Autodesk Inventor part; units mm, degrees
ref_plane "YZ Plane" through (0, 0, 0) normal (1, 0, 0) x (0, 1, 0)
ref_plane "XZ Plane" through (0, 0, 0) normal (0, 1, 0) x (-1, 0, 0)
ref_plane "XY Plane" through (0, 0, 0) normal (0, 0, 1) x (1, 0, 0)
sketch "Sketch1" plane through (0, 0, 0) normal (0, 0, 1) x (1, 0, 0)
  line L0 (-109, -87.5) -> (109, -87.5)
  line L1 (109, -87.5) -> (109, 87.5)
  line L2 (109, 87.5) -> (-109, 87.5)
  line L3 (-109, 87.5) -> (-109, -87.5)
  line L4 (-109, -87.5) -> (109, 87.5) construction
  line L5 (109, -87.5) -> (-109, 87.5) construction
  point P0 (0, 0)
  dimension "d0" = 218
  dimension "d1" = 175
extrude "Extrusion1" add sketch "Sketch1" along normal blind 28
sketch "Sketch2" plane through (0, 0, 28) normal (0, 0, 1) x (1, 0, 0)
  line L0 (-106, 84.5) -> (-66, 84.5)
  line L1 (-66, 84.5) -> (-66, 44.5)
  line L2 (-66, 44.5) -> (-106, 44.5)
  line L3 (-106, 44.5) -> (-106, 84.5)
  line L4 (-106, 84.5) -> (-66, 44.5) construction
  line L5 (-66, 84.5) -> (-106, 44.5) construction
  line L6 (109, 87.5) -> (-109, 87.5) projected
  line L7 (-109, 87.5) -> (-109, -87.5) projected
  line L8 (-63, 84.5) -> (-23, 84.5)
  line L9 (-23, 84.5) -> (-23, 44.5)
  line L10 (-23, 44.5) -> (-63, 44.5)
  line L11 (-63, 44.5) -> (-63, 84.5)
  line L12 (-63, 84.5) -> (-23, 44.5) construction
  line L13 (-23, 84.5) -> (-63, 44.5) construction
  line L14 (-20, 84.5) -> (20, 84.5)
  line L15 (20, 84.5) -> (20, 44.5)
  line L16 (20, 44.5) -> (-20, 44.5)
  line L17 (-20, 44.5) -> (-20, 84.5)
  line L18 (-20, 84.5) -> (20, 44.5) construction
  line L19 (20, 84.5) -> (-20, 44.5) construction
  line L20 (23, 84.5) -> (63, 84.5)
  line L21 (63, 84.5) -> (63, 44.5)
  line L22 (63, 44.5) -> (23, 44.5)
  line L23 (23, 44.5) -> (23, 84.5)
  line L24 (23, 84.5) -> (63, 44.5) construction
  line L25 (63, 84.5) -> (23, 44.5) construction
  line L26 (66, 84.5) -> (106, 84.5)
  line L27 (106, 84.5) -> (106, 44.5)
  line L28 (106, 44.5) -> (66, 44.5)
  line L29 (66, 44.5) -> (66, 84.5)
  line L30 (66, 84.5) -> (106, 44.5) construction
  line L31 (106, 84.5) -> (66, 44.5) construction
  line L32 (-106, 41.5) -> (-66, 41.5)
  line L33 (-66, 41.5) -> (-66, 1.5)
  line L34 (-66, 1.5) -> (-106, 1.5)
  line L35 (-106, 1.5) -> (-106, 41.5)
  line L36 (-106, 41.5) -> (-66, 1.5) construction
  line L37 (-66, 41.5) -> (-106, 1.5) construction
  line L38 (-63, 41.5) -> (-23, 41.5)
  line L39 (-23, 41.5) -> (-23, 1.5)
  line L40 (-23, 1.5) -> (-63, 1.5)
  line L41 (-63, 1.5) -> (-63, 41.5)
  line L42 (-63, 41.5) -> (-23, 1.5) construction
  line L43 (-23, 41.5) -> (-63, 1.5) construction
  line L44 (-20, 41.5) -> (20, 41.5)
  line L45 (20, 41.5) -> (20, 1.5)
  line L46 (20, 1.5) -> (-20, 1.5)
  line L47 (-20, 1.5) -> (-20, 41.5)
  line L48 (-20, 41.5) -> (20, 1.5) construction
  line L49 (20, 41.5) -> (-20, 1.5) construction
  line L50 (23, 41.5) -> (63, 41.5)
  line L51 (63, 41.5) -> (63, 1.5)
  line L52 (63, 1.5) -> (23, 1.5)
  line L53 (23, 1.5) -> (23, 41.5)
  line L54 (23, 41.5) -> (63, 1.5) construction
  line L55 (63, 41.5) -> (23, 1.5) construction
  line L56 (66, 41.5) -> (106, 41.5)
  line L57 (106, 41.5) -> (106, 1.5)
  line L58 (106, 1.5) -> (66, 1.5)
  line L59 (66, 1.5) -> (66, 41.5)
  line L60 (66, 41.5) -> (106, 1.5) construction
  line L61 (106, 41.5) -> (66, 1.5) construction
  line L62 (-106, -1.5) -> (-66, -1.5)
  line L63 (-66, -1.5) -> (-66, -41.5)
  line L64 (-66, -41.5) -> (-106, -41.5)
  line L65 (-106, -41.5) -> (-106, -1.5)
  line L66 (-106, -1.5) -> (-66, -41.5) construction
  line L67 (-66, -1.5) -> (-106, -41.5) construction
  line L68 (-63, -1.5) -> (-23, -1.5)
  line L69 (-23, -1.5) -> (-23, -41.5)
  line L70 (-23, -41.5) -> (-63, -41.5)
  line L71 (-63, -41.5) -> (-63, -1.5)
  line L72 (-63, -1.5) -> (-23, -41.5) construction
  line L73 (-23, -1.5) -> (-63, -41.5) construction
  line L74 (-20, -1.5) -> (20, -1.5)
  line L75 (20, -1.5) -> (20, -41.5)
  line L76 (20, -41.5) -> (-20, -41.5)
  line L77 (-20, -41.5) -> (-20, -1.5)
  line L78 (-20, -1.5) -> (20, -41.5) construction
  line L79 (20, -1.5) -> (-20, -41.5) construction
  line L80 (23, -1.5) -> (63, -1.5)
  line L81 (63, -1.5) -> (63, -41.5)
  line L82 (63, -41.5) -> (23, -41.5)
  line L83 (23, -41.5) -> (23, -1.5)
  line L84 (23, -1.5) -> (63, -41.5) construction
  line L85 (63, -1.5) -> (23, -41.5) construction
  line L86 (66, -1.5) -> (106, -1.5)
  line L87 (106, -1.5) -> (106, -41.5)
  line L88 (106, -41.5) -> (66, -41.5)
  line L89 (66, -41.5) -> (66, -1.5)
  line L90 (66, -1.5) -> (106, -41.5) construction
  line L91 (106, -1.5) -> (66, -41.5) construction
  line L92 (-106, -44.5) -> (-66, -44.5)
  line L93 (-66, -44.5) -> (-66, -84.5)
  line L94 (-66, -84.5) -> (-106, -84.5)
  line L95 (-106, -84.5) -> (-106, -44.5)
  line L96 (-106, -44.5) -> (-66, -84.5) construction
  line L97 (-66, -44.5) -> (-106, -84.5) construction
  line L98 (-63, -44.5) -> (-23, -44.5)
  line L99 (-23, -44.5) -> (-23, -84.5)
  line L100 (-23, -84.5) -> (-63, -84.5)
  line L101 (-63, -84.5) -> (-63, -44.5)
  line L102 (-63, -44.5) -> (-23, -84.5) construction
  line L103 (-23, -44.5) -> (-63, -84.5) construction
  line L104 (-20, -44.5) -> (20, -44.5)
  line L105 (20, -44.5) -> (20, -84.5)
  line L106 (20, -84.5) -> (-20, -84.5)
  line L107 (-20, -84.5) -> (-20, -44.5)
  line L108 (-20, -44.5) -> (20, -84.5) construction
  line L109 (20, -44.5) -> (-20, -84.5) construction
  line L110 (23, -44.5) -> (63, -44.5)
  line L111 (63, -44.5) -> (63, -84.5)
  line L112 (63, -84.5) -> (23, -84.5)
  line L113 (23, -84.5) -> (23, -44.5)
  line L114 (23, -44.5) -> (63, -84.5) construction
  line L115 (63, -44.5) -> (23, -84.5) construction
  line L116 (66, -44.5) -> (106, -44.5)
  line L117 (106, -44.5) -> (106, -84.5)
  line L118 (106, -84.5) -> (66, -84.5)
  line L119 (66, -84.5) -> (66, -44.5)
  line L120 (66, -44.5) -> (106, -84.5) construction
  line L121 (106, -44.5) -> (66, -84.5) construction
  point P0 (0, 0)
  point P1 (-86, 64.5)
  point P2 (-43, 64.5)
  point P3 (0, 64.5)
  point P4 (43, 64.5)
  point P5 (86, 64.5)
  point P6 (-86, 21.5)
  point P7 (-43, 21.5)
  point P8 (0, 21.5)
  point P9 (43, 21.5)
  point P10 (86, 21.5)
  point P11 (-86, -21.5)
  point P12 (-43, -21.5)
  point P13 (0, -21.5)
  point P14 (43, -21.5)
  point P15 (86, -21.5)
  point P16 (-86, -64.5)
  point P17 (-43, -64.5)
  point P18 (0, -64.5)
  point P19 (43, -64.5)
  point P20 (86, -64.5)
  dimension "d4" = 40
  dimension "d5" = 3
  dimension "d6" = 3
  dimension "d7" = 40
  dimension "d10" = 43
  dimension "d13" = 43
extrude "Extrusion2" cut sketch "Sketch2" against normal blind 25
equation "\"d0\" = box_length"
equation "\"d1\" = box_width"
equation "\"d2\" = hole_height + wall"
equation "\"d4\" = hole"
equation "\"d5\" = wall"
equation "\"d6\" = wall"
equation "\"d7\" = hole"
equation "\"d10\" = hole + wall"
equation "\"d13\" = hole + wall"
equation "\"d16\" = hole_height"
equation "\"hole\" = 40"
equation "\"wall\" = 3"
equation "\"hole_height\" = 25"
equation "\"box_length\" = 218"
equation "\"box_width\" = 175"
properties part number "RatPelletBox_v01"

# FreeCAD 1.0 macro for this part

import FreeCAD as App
import Part
import Sketcher
from FreeCAD import Vector

doc = App.newDocument("Part")
body = doc.addObject("PartDesign::Body", "Body")

# Sketch on XY plane
sketch1 = body.newObject("Sketcher::SketchObject", "Sketch")
sketch1.AttachmentSupport = (doc.getObject("XY_Plane"), [""])
sketch1.MapMode = "FlatFace"
sketch1.addGeometry([
    Part.LineSegment(Vector(-109, 87.5, 0), Vector(-109, -87.5, 0)),
    Part.LineSegment(Vector(-109, -87.5, 0), Vector(109, -87.5, 0)),
    Part.LineSegment(Vector(109, -87.5, 0), Vector(109, 87.5, 0)),
    Part.LineSegment(Vector(109, 87.5, 0), Vector(-109, 87.5, 0)),
], False)
sketch1.addConstraint([
    Sketcher.Constraint("Coincident", 0, 2, 1, 1),
    Sketcher.Constraint("Coincident", 1, 2, 2, 1),
    Sketcher.Constraint("Coincident", 2, 2, 3, 1),
    Sketcher.Constraint("Coincident", 3, 2, 0, 1),
    Sketcher.Constraint("Vertical", 0),
    Sketcher.Constraint("Horizontal", 1),
    Sketcher.Constraint("Vertical", 2),
    Sketcher.Constraint("Horizontal", 3),
    Sketcher.Constraint("Symmetric", 0, 2, 2, 2, -1, 1),
    Sketcher.Constraint("DistanceX", 1, 1, 1, 2, 218.0),
    Sketcher.Constraint("DistanceY", 0, 2, 0, 1, 175.0),
])
pad1 = body.newObject("PartDesign::Pad", "Pad")
pad1.Profile = sketch1
pad1.Length = 28

# Sketch on XY plane
sketch2 = body.newObject("Sketcher::SketchObject", "Sketch001")
sketch2.AttachmentSupport = (doc.getObject("XY_Plane"), [""])
sketch2.MapMode = "FlatFace"
sketch2.AttachmentOffset = App.Placement(Vector(0, 0, 28), App.Rotation())
sketch2.addGeometry([
    Part.LineSegment(Vector(-66, 84.5, 0), Vector(-106, 84.5, 0)),  # 0
    Part.LineSegment(Vector(-106, 84.5, 0), Vector(-106, 44.5, 0)),  # 1
    Part.LineSegment(Vector(-106, 44.5, 0), Vector(-66, 44.5, 0)),  # 2
    Part.LineSegment(Vector(-66, 44.5, 0), Vector(-66, 84.5, 0)),  # 3
    Part.LineSegment(Vector(-23, 84.5, 0), Vector(-63, 84.5, 0)),  # 4
    Part.LineSegment(Vector(-63, 84.5, 0), Vector(-63, 44.5, 0)),  # 5
    Part.LineSegment(Vector(-63, 44.5, 0), Vector(-23, 44.5, 0)),  # 6
    Part.LineSegment(Vector(-23, 44.5, 0), Vector(-23, 84.5, 0)),  # 7
    Part.LineSegment(Vector(20, 84.5, 0), Vector(-20, 84.5, 0)),  # 8
    Part.LineSegment(Vector(-20, 84.5, 0), Vector(-20, 44.5, 0)),  # 9
    Part.LineSegment(Vector(-20, 44.5, 0), Vector(20, 44.5, 0)),  # 10
    Part.LineSegment(Vector(20, 44.5, 0), Vector(20, 84.5, 0)),  # 11
    Part.LineSegment(Vector(63, 84.5, 0), Vector(23, 84.5, 0)),  # 12
    Part.LineSegment(Vector(23, 84.5, 0), Vector(23, 44.5, 0)),  # 13
    Part.LineSegment(Vector(23, 44.5, 0), Vector(63, 44.5, 0)),  # 14
    Part.LineSegment(Vector(63, 44.5, 0), Vector(63, 84.5, 0)),  # 15
    Part.LineSegment(Vector(106, 84.5, 0), Vector(66, 84.5, 0)),  # 16
    Part.LineSegment(Vector(66, 84.5, 0), Vector(66, 44.5, 0)),  # 17
    Part.LineSegment(Vector(66, 44.5, 0), Vector(106, 44.5, 0)),  # 18
    Part.LineSegment(Vector(106, 44.5, 0), Vector(106, 84.5, 0)),  # 19
    Part.LineSegment(Vector(-66, 41.5, 0), Vector(-106, 41.5, 0)),  # 20
    Part.LineSegment(Vector(-106, 41.5, 0), Vector(-106, 1.5, 0)),  # 21
    Part.LineSegment(Vector(-106, 1.5, 0), Vector(-66, 1.5, 0)),  # 22
    Part.LineSegment(Vector(-66, 1.5, 0), Vector(-66, 41.5, 0)),  # 23
    Part.LineSegment(Vector(-23, 41.5, 0), Vector(-63, 41.5, 0)),  # 24
    Part.LineSegment(Vector(-63, 41.5, 0), Vector(-63, 1.5, 0)),  # 25
    Part.LineSegment(Vector(-63, 1.5, 0), Vector(-23, 1.5, 0)),  # 26
    Part.LineSegment(Vector(-23, 1.5, 0), Vector(-23, 41.5, 0)),  # 27
    Part.LineSegment(Vector(20, 41.5, 0), Vector(-20, 41.5, 0)),  # 28
    Part.LineSegment(Vector(-20, 41.5, 0), Vector(-20, 1.5, 0)),  # 29
    Part.LineSegment(Vector(-20, 1.5, 0), Vector(20, 1.5, 0)),  # 30
    Part.LineSegment(Vector(20, 1.5, 0), Vector(20, 41.5, 0)),  # 31
    Part.LineSegment(Vector(63, 41.5, 0), Vector(23, 41.5, 0)),  # 32
    Part.LineSegment(Vector(23, 41.5, 0), Vector(23, 1.5, 0)),  # 33
    Part.LineSegment(Vector(23, 1.5, 0), Vector(63, 1.5, 0)),  # 34
    Part.LineSegment(Vector(63, 1.5, 0), Vector(63, 41.5, 0)),  # 35
    Part.LineSegment(Vector(106, 41.5, 0), Vector(66, 41.5, 0)),  # 36
    Part.LineSegment(Vector(66, 41.5, 0), Vector(66, 1.5, 0)),  # 37
    Part.LineSegment(Vector(66, 1.5, 0), Vector(106, 1.5, 0)),  # 38
    Part.LineSegment(Vector(106, 1.5, 0), Vector(106, 41.5, 0)),  # 39
    Part.LineSegment(Vector(-66, -1.5, 0), Vector(-106, -1.5, 0)),  # 40
    Part.LineSegment(Vector(-106, -1.5, 0), Vector(-106, -41.5, 0)),  # 41
    Part.LineSegment(Vector(-106, -41.5, 0), Vector(-66, -41.5, 0)),  # 42
    Part.LineSegment(Vector(-66, -41.5, 0), Vector(-66, -1.5, 0)),  # 43
    Part.LineSegment(Vector(-23, -1.5, 0), Vector(-63, -1.5, 0)),  # 44
    Part.LineSegment(Vector(-63, -1.5, 0), Vector(-63, -41.5, 0)),  # 45
    Part.LineSegment(Vector(-63, -41.5, 0), Vector(-23, -41.5, 0)),  # 46
    Part.LineSegment(Vector(-23, -41.5, 0), Vector(-23, -1.5, 0)),  # 47
    Part.LineSegment(Vector(20, -1.5, 0), Vector(-20, -1.5, 0)),  # 48
    Part.LineSegment(Vector(-20, -1.5, 0), Vector(-20, -41.5, 0)),  # 49
    Part.LineSegment(Vector(-20, -41.5, 0), Vector(20, -41.5, 0)),  # 50
    Part.LineSegment(Vector(20, -41.5, 0), Vector(20, -1.5, 0)),  # 51
    Part.LineSegment(Vector(63, -1.5, 0), Vector(23, -1.5, 0)),  # 52
    Part.LineSegment(Vector(23, -1.5, 0), Vector(23, -41.5, 0)),  # 53
    Part.LineSegment(Vector(23, -41.5, 0), Vector(63, -41.5, 0)),  # 54
    Part.LineSegment(Vector(63, -41.5, 0), Vector(63, -1.5, 0)),  # 55
    Part.LineSegment(Vector(106, -1.5, 0), Vector(66, -1.5, 0)),  # 56
    Part.LineSegment(Vector(66, -1.5, 0), Vector(66, -41.5, 0)),  # 57
    Part.LineSegment(Vector(66, -41.5, 0), Vector(106, -41.5, 0)),  # 58
    Part.LineSegment(Vector(106, -41.5, 0), Vector(106, -1.5, 0)),  # 59
    Part.LineSegment(Vector(-66, -44.5, 0), Vector(-106, -44.5, 0)),  # 60
    Part.LineSegment(Vector(-106, -44.5, 0), Vector(-106, -84.5, 0)),  # 61
    Part.LineSegment(Vector(-106, -84.5, 0), Vector(-66, -84.5, 0)),  # 62
    Part.LineSegment(Vector(-66, -84.5, 0), Vector(-66, -44.5, 0)),  # 63
    Part.LineSegment(Vector(-23, -44.5, 0), Vector(-63, -44.5, 0)),  # 64
    Part.LineSegment(Vector(-63, -44.5, 0), Vector(-63, -84.5, 0)),  # 65
    Part.LineSegment(Vector(-63, -84.5, 0), Vector(-23, -84.5, 0)),  # 66
    Part.LineSegment(Vector(-23, -84.5, 0), Vector(-23, -44.5, 0)),  # 67
    Part.LineSegment(Vector(20, -44.5, 0), Vector(-20, -44.5, 0)),  # 68
    Part.LineSegment(Vector(-20, -44.5, 0), Vector(-20, -84.5, 0)),  # 69
    Part.LineSegment(Vector(-20, -84.5, 0), Vector(20, -84.5, 0)),  # 70
    Part.LineSegment(Vector(20, -84.5, 0), Vector(20, -44.5, 0)),  # 71
    Part.LineSegment(Vector(63, -44.5, 0), Vector(23, -44.5, 0)),  # 72
    Part.LineSegment(Vector(23, -44.5, 0), Vector(23, -84.5, 0)),  # 73
    Part.LineSegment(Vector(23, -84.5, 0), Vector(63, -84.5, 0)),  # 74
    Part.LineSegment(Vector(63, -84.5, 0), Vector(63, -44.5, 0)),  # 75
    Part.LineSegment(Vector(106, -44.5, 0), Vector(66, -44.5, 0)),  # 76
    Part.LineSegment(Vector(66, -44.5, 0), Vector(66, -84.5, 0)),  # 77
    Part.LineSegment(Vector(66, -84.5, 0), Vector(106, -84.5, 0)),  # 78
    Part.LineSegment(Vector(106, -84.5, 0), Vector(106, -44.5, 0)),  # 79
], False)
sketch2.addConstraint([
    Sketcher.Constraint("Coincident", 0, 2, 1, 1),
    Sketcher.Constraint("Coincident", 1, 2, 2, 1),
    Sketcher.Constraint("Coincident", 2, 2, 3, 1),
    Sketcher.Constraint("Coincident", 3, 2, 0, 1),
    Sketcher.Constraint("Coincident", 4, 2, 5, 1),
    Sketcher.Constraint("Coincident", 5, 2, 6, 1),
    Sketcher.Constraint("Coincident", 6, 2, 7, 1),
    Sketcher.Constraint("Coincident", 7, 2, 4, 1),
    Sketcher.Constraint("Coincident", 8, 2, 9, 1),
    Sketcher.Constraint("Coincident", 9, 2, 10, 1),
    Sketcher.Constraint("Coincident", 10, 2, 11, 1),
    Sketcher.Constraint("Coincident", 11, 2, 8, 1),
    Sketcher.Constraint("Coincident", 12, 2, 13, 1),
    Sketcher.Constraint("Coincident", 13, 2, 14, 1),
    Sketcher.Constraint("Coincident", 14, 2, 15, 1),
    Sketcher.Constraint("Coincident", 15, 2, 12, 1),
    Sketcher.Constraint("Coincident", 16, 2, 17, 1),
    Sketcher.Constraint("Coincident", 17, 2, 18, 1),
    Sketcher.Constraint("Coincident", 18, 2, 19, 1),
    Sketcher.Constraint("Coincident", 19, 2, 16, 1),
    Sketcher.Constraint("Coincident", 20, 2, 21, 1),
    Sketcher.Constraint("Coincident", 21, 2, 22, 1),
    Sketcher.Constraint("Coincident", 22, 2, 23, 1),
    Sketcher.Constraint("Coincident", 23, 2, 20, 1),
    Sketcher.Constraint("Coincident", 24, 2, 25, 1),
    Sketcher.Constraint("Coincident", 25, 2, 26, 1),
    Sketcher.Constraint("Coincident", 26, 2, 27, 1),
    Sketcher.Constraint("Coincident", 27, 2, 24, 1),
    Sketcher.Constraint("Coincident", 28, 2, 29, 1),
    Sketcher.Constraint("Coincident", 29, 2, 30, 1),
    Sketcher.Constraint("Coincident", 30, 2, 31, 1),
    Sketcher.Constraint("Coincident", 31, 2, 28, 1),
    Sketcher.Constraint("Coincident", 32, 2, 33, 1),
    Sketcher.Constraint("Coincident", 33, 2, 34, 1),
    Sketcher.Constraint("Coincident", 34, 2, 35, 1),
    Sketcher.Constraint("Coincident", 35, 2, 32, 1),
    Sketcher.Constraint("Coincident", 36, 2, 37, 1),
    Sketcher.Constraint("Coincident", 37, 2, 38, 1),
    Sketcher.Constraint("Coincident", 38, 2, 39, 1),
    Sketcher.Constraint("Coincident", 39, 2, 36, 1),
    Sketcher.Constraint("Coincident", 40, 2, 41, 1),
    Sketcher.Constraint("Coincident", 41, 2, 42, 1),
    Sketcher.Constraint("Coincident", 42, 2, 43, 1),
    Sketcher.Constraint("Coincident", 43, 2, 40, 1),
    Sketcher.Constraint("Coincident", 44, 2, 45, 1),
    Sketcher.Constraint("Coincident", 45, 2, 46, 1),
    Sketcher.Constraint("Coincident", 46, 2, 47, 1),
    Sketcher.Constraint("Coincident", 47, 2, 44, 1),
    Sketcher.Constraint("Coincident", 48, 2, 49, 1),
    Sketcher.Constraint("Coincident", 49, 2, 50, 1),
    Sketcher.Constraint("Coincident", 50, 2, 51, 1),
    Sketcher.Constraint("Coincident", 51, 2, 48, 1),
    Sketcher.Constraint("Coincident", 52, 2, 53, 1),
    Sketcher.Constraint("Coincident", 53, 2, 54, 1),
    Sketcher.Constraint("Coincident", 54, 2, 55, 1),
    Sketcher.Constraint("Coincident", 55, 2, 52, 1),
    Sketcher.Constraint("Coincident", 56, 2, 57, 1),
    Sketcher.Constraint("Coincident", 57, 2, 58, 1),
    Sketcher.Constraint("Coincident", 58, 2, 59, 1),
    Sketcher.Constraint("Coincident", 59, 2, 56, 1),
    Sketcher.Constraint("Coincident", 60, 2, 61, 1),
    Sketcher.Constraint("Coincident", 61, 2, 62, 1),
    Sketcher.Constraint("Coincident", 62, 2, 63, 1),
    Sketcher.Constraint("Coincident", 63, 2, 60, 1),
    Sketcher.Constraint("Coincident", 64, 2, 65, 1),
    Sketcher.Constraint("Coincident", 65, 2, 66, 1),
    Sketcher.Constraint("Coincident", 66, 2, 67, 1),
    Sketcher.Constraint("Coincident", 67, 2, 64, 1),
    Sketcher.Constraint("Coincident", 68, 2, 69, 1),
    Sketcher.Constraint("Coincident", 69, 2, 70, 1),
    Sketcher.Constraint("Coincident", 70, 2, 71, 1),
    Sketcher.Constraint("Coincident", 71, 2, 68, 1),
    Sketcher.Constraint("Coincident", 72, 2, 73, 1),
    Sketcher.Constraint("Coincident", 73, 2, 74, 1),
    Sketcher.Constraint("Coincident", 74, 2, 75, 1),
    Sketcher.Constraint("Coincident", 75, 2, 72, 1),
    Sketcher.Constraint("Coincident", 76, 2, 77, 1),
    Sketcher.Constraint("Coincident", 77, 2, 78, 1),
    Sketcher.Constraint("Coincident", 78, 2, 79, 1),
    Sketcher.Constraint("Coincident", 79, 2, 76, 1),
    Sketcher.Constraint("Horizontal", 0),
    Sketcher.Constraint("Vertical", 1),
    Sketcher.Constraint("Horizontal", 2),
    Sketcher.Constraint("Vertical", 3),
    Sketcher.Constraint("Horizontal", 4),
    Sketcher.Constraint("Vertical", 5),
    Sketcher.Constraint("Horizontal", 6),
    Sketcher.Constraint("Vertical", 7),
    Sketcher.Constraint("Horizontal", 8),
    Sketcher.Constraint("Vertical", 9),
    Sketcher.Constraint("Horizontal", 10),
    Sketcher.Constraint("Vertical", 11),
    Sketcher.Constraint("Horizontal", 12),
    Sketcher.Constraint("Vertical", 13),
    Sketcher.Constraint("Horizontal", 14),
    Sketcher.Constraint("Vertical", 15),
    Sketcher.Constraint("Horizontal", 16),
    Sketcher.Constraint("Vertical", 17),
    Sketcher.Constraint("Horizontal", 18),
    Sketcher.Constraint("Vertical", 19),
    Sketcher.Constraint("Horizontal", 20),
    Sketcher.Constraint("Vertical", 21),
    Sketcher.Constraint("Horizontal", 22),
    Sketcher.Constraint("Vertical", 23),
    Sketcher.Constraint("Horizontal", 24),
    Sketcher.Constraint("Vertical", 25),
    Sketcher.Constraint("Horizontal", 26),
    Sketcher.Constraint("Vertical", 27),
    Sketcher.Constraint("Horizontal", 28),
    Sketcher.Constraint("Vertical", 29),
    Sketcher.Constraint("Horizontal", 30),
    Sketcher.Constraint("Vertical", 31),
    Sketcher.Constraint("Horizontal", 32),
    Sketcher.Constraint("Vertical", 33),
    Sketcher.Constraint("Horizontal", 34),
    Sketcher.Constraint("Vertical", 35),
    Sketcher.Constraint("Horizontal", 36),
    Sketcher.Constraint("Vertical", 37),
    Sketcher.Constraint("Horizontal", 38),
    Sketcher.Constraint("Vertical", 39),
    Sketcher.Constraint("Horizontal", 40),
    Sketcher.Constraint("Vertical", 41),
    Sketcher.Constraint("Horizontal", 42),
    Sketcher.Constraint("Vertical", 43),
    Sketcher.Constraint("Horizontal", 44),
    Sketcher.Constraint("Vertical", 45),
    Sketcher.Constraint("Horizontal", 46),
    Sketcher.Constraint("Vertical", 47),
    Sketcher.Constraint("Horizontal", 48),
    Sketcher.Constraint("Vertical", 49),
    Sketcher.Constraint("Horizontal", 50),
    Sketcher.Constraint("Vertical", 51),
    Sketcher.Constraint("Horizontal", 52),
    Sketcher.Constraint("Vertical", 53),
    Sketcher.Constraint("Horizontal", 54),
    Sketcher.Constraint("Vertical", 55),
    Sketcher.Constraint("Horizontal", 56),
    Sketcher.Constraint("Vertical", 57),
    Sketcher.Constraint("Horizontal", 58),
    Sketcher.Constraint("Vertical", 59),
    Sketcher.Constraint("Horizontal", 60),
    Sketcher.Constraint("Vertical", 61),
    Sketcher.Constraint("Horizontal", 62),
    Sketcher.Constraint("Vertical", 63),
    Sketcher.Constraint("Horizontal", 64),
    Sketcher.Constraint("Vertical", 65),
    Sketcher.Constraint("Horizontal", 66),
    Sketcher.Constraint("Vertical", 67),
    Sketcher.Constraint("Horizontal", 68),
    Sketcher.Constraint("Vertical", 69),
    Sketcher.Constraint("Horizontal", 70),
    Sketcher.Constraint("Vertical", 71),
    Sketcher.Constraint("Horizontal", 72),
    Sketcher.Constraint("Vertical", 73),
    Sketcher.Constraint("Horizontal", 74),
    Sketcher.Constraint("Vertical", 75),
    Sketcher.Constraint("Horizontal", 76),
    Sketcher.Constraint("Vertical", 77),
    Sketcher.Constraint("Horizontal", 78),
    Sketcher.Constraint("Vertical", 79),
    Sketcher.Constraint("Symmetric", 38, 2, 40, 2, -1, 1),
    Sketcher.Constraint("Symmetric", 36, 2, 42, 2, -1, 1),
    Sketcher.Constraint("Symmetric", 34, 2, 44, 2, -1, 1),
    Sketcher.Constraint("Symmetric", 32, 2, 46, 2, -1, 1),
    Sketcher.Constraint("Symmetric", 30, 2, 48, 2, -1, 1),
    Sketcher.Constraint("Symmetric", 28, 2, 50, 2, -1, 1),
    Sketcher.Constraint("Symmetric", 26, 2, 52, 2, -1, 1),
    Sketcher.Constraint("Symmetric", 24, 2, 54, 2, -1, 1),
    Sketcher.Constraint("Symmetric", 22, 2, 56, 2, -1, 1),
    Sketcher.Constraint("Symmetric", 20, 2, 58, 2, -1, 1),
    Sketcher.Constraint("Symmetric", 18, 2, 60, 2, -1, 1),
    Sketcher.Constraint("Symmetric", 16, 2, 62, 2, -1, 1),
    Sketcher.Constraint("Symmetric", 14, 2, 64, 2, -1, 1),
    Sketcher.Constraint("Symmetric", 12, 2, 66, 2, -1, 1),
    Sketcher.Constraint("Symmetric", 10, 2, 68, 2, -1, 1),
    Sketcher.Constraint("Symmetric", 8, 2, 70, 2, -1, 1),
    Sketcher.Constraint("Symmetric", 6, 2, 72, 2, -1, 1),
    Sketcher.Constraint("Symmetric", 4, 2, 74, 2, -1, 1),
    Sketcher.Constraint("Symmetric", 2, 2, 76, 2, -1, 1),
    Sketcher.Constraint("Symmetric", 0, 2, 78, 2, -1, 1),
    Sketcher.Constraint("Symmetric", 7, 2, 12, 2, -2),
    Sketcher.Constraint("Symmetric", 5, 2, 14, 2, -2),
    Sketcher.Constraint("Symmetric", 3, 2, 16, 2, -2),
    Sketcher.Constraint("Symmetric", 1, 2, 18, 2, -2),
    Sketcher.Constraint("Symmetric", 27, 2, 32, 2, -2),
    Sketcher.Constraint("Symmetric", 25, 2, 34, 2, -2),
    Sketcher.Constraint("Symmetric", 23, 2, 36, 2, -2),
    Sketcher.Constraint("Symmetric", 21, 2, 38, 2, -2),
    Sketcher.Constraint("Horizontal", 3, 2, 4, 2),
    Sketcher.Constraint("Horizontal", 2, 2, 5, 2),
    Sketcher.Constraint("Horizontal", 7, 2, 8, 2),
    Sketcher.Constraint("Horizontal", 6, 2, 9, 2),
    Sketcher.Constraint("Horizontal", 23, 2, 24, 2),
    Sketcher.Constraint("Horizontal", 22, 2, 25, 2),
    Sketcher.Constraint("Horizontal", 27, 2, 28, 2),
    Sketcher.Constraint("Horizontal", 26, 2, 29, 2),
    Sketcher.Constraint("Vertical", 1, 2, 20, 2),
    Sketcher.Constraint("Vertical", 3, 2, 22, 2),
    Sketcher.Constraint("Vertical", 5, 2, 24, 2),
    Sketcher.Constraint("Vertical", 7, 2, 26, 2),
    Sketcher.Constraint("Vertical", 9, 2, 28, 2),
    Sketcher.Constraint("Vertical", 11, 2, 30, 2),
    Sketcher.Constraint("Vertical", 29, 2, 48, 2),
    Sketcher.Constraint("Equal", 2, 4),
    Sketcher.Constraint("Equal", 6, 8),
    Sketcher.Constraint("Equal", 78, 1),
    Sketcher.Constraint("Equal", 19, 21),
    Sketcher.Constraint("DistanceX", 0, 2, 0, 1, 40.0),
    Sketcher.Constraint("DistanceX", 0, 2, -1, 1, 106.0),
    Sketcher.Constraint("DistanceX", 4, 2, -1, 1, 63.0),
    Sketcher.Constraint("DistanceY", -1, 1, 0, 2, 84.5),
    Sketcher.Constraint("DistanceY", -1, 1, 20, 2, 41.5),
])
pocket1 = body.newObject("PartDesign::Pocket", "Pocket")
pocket1.Profile = sketch2
pocket1.Length = 25

doc.recompute()
